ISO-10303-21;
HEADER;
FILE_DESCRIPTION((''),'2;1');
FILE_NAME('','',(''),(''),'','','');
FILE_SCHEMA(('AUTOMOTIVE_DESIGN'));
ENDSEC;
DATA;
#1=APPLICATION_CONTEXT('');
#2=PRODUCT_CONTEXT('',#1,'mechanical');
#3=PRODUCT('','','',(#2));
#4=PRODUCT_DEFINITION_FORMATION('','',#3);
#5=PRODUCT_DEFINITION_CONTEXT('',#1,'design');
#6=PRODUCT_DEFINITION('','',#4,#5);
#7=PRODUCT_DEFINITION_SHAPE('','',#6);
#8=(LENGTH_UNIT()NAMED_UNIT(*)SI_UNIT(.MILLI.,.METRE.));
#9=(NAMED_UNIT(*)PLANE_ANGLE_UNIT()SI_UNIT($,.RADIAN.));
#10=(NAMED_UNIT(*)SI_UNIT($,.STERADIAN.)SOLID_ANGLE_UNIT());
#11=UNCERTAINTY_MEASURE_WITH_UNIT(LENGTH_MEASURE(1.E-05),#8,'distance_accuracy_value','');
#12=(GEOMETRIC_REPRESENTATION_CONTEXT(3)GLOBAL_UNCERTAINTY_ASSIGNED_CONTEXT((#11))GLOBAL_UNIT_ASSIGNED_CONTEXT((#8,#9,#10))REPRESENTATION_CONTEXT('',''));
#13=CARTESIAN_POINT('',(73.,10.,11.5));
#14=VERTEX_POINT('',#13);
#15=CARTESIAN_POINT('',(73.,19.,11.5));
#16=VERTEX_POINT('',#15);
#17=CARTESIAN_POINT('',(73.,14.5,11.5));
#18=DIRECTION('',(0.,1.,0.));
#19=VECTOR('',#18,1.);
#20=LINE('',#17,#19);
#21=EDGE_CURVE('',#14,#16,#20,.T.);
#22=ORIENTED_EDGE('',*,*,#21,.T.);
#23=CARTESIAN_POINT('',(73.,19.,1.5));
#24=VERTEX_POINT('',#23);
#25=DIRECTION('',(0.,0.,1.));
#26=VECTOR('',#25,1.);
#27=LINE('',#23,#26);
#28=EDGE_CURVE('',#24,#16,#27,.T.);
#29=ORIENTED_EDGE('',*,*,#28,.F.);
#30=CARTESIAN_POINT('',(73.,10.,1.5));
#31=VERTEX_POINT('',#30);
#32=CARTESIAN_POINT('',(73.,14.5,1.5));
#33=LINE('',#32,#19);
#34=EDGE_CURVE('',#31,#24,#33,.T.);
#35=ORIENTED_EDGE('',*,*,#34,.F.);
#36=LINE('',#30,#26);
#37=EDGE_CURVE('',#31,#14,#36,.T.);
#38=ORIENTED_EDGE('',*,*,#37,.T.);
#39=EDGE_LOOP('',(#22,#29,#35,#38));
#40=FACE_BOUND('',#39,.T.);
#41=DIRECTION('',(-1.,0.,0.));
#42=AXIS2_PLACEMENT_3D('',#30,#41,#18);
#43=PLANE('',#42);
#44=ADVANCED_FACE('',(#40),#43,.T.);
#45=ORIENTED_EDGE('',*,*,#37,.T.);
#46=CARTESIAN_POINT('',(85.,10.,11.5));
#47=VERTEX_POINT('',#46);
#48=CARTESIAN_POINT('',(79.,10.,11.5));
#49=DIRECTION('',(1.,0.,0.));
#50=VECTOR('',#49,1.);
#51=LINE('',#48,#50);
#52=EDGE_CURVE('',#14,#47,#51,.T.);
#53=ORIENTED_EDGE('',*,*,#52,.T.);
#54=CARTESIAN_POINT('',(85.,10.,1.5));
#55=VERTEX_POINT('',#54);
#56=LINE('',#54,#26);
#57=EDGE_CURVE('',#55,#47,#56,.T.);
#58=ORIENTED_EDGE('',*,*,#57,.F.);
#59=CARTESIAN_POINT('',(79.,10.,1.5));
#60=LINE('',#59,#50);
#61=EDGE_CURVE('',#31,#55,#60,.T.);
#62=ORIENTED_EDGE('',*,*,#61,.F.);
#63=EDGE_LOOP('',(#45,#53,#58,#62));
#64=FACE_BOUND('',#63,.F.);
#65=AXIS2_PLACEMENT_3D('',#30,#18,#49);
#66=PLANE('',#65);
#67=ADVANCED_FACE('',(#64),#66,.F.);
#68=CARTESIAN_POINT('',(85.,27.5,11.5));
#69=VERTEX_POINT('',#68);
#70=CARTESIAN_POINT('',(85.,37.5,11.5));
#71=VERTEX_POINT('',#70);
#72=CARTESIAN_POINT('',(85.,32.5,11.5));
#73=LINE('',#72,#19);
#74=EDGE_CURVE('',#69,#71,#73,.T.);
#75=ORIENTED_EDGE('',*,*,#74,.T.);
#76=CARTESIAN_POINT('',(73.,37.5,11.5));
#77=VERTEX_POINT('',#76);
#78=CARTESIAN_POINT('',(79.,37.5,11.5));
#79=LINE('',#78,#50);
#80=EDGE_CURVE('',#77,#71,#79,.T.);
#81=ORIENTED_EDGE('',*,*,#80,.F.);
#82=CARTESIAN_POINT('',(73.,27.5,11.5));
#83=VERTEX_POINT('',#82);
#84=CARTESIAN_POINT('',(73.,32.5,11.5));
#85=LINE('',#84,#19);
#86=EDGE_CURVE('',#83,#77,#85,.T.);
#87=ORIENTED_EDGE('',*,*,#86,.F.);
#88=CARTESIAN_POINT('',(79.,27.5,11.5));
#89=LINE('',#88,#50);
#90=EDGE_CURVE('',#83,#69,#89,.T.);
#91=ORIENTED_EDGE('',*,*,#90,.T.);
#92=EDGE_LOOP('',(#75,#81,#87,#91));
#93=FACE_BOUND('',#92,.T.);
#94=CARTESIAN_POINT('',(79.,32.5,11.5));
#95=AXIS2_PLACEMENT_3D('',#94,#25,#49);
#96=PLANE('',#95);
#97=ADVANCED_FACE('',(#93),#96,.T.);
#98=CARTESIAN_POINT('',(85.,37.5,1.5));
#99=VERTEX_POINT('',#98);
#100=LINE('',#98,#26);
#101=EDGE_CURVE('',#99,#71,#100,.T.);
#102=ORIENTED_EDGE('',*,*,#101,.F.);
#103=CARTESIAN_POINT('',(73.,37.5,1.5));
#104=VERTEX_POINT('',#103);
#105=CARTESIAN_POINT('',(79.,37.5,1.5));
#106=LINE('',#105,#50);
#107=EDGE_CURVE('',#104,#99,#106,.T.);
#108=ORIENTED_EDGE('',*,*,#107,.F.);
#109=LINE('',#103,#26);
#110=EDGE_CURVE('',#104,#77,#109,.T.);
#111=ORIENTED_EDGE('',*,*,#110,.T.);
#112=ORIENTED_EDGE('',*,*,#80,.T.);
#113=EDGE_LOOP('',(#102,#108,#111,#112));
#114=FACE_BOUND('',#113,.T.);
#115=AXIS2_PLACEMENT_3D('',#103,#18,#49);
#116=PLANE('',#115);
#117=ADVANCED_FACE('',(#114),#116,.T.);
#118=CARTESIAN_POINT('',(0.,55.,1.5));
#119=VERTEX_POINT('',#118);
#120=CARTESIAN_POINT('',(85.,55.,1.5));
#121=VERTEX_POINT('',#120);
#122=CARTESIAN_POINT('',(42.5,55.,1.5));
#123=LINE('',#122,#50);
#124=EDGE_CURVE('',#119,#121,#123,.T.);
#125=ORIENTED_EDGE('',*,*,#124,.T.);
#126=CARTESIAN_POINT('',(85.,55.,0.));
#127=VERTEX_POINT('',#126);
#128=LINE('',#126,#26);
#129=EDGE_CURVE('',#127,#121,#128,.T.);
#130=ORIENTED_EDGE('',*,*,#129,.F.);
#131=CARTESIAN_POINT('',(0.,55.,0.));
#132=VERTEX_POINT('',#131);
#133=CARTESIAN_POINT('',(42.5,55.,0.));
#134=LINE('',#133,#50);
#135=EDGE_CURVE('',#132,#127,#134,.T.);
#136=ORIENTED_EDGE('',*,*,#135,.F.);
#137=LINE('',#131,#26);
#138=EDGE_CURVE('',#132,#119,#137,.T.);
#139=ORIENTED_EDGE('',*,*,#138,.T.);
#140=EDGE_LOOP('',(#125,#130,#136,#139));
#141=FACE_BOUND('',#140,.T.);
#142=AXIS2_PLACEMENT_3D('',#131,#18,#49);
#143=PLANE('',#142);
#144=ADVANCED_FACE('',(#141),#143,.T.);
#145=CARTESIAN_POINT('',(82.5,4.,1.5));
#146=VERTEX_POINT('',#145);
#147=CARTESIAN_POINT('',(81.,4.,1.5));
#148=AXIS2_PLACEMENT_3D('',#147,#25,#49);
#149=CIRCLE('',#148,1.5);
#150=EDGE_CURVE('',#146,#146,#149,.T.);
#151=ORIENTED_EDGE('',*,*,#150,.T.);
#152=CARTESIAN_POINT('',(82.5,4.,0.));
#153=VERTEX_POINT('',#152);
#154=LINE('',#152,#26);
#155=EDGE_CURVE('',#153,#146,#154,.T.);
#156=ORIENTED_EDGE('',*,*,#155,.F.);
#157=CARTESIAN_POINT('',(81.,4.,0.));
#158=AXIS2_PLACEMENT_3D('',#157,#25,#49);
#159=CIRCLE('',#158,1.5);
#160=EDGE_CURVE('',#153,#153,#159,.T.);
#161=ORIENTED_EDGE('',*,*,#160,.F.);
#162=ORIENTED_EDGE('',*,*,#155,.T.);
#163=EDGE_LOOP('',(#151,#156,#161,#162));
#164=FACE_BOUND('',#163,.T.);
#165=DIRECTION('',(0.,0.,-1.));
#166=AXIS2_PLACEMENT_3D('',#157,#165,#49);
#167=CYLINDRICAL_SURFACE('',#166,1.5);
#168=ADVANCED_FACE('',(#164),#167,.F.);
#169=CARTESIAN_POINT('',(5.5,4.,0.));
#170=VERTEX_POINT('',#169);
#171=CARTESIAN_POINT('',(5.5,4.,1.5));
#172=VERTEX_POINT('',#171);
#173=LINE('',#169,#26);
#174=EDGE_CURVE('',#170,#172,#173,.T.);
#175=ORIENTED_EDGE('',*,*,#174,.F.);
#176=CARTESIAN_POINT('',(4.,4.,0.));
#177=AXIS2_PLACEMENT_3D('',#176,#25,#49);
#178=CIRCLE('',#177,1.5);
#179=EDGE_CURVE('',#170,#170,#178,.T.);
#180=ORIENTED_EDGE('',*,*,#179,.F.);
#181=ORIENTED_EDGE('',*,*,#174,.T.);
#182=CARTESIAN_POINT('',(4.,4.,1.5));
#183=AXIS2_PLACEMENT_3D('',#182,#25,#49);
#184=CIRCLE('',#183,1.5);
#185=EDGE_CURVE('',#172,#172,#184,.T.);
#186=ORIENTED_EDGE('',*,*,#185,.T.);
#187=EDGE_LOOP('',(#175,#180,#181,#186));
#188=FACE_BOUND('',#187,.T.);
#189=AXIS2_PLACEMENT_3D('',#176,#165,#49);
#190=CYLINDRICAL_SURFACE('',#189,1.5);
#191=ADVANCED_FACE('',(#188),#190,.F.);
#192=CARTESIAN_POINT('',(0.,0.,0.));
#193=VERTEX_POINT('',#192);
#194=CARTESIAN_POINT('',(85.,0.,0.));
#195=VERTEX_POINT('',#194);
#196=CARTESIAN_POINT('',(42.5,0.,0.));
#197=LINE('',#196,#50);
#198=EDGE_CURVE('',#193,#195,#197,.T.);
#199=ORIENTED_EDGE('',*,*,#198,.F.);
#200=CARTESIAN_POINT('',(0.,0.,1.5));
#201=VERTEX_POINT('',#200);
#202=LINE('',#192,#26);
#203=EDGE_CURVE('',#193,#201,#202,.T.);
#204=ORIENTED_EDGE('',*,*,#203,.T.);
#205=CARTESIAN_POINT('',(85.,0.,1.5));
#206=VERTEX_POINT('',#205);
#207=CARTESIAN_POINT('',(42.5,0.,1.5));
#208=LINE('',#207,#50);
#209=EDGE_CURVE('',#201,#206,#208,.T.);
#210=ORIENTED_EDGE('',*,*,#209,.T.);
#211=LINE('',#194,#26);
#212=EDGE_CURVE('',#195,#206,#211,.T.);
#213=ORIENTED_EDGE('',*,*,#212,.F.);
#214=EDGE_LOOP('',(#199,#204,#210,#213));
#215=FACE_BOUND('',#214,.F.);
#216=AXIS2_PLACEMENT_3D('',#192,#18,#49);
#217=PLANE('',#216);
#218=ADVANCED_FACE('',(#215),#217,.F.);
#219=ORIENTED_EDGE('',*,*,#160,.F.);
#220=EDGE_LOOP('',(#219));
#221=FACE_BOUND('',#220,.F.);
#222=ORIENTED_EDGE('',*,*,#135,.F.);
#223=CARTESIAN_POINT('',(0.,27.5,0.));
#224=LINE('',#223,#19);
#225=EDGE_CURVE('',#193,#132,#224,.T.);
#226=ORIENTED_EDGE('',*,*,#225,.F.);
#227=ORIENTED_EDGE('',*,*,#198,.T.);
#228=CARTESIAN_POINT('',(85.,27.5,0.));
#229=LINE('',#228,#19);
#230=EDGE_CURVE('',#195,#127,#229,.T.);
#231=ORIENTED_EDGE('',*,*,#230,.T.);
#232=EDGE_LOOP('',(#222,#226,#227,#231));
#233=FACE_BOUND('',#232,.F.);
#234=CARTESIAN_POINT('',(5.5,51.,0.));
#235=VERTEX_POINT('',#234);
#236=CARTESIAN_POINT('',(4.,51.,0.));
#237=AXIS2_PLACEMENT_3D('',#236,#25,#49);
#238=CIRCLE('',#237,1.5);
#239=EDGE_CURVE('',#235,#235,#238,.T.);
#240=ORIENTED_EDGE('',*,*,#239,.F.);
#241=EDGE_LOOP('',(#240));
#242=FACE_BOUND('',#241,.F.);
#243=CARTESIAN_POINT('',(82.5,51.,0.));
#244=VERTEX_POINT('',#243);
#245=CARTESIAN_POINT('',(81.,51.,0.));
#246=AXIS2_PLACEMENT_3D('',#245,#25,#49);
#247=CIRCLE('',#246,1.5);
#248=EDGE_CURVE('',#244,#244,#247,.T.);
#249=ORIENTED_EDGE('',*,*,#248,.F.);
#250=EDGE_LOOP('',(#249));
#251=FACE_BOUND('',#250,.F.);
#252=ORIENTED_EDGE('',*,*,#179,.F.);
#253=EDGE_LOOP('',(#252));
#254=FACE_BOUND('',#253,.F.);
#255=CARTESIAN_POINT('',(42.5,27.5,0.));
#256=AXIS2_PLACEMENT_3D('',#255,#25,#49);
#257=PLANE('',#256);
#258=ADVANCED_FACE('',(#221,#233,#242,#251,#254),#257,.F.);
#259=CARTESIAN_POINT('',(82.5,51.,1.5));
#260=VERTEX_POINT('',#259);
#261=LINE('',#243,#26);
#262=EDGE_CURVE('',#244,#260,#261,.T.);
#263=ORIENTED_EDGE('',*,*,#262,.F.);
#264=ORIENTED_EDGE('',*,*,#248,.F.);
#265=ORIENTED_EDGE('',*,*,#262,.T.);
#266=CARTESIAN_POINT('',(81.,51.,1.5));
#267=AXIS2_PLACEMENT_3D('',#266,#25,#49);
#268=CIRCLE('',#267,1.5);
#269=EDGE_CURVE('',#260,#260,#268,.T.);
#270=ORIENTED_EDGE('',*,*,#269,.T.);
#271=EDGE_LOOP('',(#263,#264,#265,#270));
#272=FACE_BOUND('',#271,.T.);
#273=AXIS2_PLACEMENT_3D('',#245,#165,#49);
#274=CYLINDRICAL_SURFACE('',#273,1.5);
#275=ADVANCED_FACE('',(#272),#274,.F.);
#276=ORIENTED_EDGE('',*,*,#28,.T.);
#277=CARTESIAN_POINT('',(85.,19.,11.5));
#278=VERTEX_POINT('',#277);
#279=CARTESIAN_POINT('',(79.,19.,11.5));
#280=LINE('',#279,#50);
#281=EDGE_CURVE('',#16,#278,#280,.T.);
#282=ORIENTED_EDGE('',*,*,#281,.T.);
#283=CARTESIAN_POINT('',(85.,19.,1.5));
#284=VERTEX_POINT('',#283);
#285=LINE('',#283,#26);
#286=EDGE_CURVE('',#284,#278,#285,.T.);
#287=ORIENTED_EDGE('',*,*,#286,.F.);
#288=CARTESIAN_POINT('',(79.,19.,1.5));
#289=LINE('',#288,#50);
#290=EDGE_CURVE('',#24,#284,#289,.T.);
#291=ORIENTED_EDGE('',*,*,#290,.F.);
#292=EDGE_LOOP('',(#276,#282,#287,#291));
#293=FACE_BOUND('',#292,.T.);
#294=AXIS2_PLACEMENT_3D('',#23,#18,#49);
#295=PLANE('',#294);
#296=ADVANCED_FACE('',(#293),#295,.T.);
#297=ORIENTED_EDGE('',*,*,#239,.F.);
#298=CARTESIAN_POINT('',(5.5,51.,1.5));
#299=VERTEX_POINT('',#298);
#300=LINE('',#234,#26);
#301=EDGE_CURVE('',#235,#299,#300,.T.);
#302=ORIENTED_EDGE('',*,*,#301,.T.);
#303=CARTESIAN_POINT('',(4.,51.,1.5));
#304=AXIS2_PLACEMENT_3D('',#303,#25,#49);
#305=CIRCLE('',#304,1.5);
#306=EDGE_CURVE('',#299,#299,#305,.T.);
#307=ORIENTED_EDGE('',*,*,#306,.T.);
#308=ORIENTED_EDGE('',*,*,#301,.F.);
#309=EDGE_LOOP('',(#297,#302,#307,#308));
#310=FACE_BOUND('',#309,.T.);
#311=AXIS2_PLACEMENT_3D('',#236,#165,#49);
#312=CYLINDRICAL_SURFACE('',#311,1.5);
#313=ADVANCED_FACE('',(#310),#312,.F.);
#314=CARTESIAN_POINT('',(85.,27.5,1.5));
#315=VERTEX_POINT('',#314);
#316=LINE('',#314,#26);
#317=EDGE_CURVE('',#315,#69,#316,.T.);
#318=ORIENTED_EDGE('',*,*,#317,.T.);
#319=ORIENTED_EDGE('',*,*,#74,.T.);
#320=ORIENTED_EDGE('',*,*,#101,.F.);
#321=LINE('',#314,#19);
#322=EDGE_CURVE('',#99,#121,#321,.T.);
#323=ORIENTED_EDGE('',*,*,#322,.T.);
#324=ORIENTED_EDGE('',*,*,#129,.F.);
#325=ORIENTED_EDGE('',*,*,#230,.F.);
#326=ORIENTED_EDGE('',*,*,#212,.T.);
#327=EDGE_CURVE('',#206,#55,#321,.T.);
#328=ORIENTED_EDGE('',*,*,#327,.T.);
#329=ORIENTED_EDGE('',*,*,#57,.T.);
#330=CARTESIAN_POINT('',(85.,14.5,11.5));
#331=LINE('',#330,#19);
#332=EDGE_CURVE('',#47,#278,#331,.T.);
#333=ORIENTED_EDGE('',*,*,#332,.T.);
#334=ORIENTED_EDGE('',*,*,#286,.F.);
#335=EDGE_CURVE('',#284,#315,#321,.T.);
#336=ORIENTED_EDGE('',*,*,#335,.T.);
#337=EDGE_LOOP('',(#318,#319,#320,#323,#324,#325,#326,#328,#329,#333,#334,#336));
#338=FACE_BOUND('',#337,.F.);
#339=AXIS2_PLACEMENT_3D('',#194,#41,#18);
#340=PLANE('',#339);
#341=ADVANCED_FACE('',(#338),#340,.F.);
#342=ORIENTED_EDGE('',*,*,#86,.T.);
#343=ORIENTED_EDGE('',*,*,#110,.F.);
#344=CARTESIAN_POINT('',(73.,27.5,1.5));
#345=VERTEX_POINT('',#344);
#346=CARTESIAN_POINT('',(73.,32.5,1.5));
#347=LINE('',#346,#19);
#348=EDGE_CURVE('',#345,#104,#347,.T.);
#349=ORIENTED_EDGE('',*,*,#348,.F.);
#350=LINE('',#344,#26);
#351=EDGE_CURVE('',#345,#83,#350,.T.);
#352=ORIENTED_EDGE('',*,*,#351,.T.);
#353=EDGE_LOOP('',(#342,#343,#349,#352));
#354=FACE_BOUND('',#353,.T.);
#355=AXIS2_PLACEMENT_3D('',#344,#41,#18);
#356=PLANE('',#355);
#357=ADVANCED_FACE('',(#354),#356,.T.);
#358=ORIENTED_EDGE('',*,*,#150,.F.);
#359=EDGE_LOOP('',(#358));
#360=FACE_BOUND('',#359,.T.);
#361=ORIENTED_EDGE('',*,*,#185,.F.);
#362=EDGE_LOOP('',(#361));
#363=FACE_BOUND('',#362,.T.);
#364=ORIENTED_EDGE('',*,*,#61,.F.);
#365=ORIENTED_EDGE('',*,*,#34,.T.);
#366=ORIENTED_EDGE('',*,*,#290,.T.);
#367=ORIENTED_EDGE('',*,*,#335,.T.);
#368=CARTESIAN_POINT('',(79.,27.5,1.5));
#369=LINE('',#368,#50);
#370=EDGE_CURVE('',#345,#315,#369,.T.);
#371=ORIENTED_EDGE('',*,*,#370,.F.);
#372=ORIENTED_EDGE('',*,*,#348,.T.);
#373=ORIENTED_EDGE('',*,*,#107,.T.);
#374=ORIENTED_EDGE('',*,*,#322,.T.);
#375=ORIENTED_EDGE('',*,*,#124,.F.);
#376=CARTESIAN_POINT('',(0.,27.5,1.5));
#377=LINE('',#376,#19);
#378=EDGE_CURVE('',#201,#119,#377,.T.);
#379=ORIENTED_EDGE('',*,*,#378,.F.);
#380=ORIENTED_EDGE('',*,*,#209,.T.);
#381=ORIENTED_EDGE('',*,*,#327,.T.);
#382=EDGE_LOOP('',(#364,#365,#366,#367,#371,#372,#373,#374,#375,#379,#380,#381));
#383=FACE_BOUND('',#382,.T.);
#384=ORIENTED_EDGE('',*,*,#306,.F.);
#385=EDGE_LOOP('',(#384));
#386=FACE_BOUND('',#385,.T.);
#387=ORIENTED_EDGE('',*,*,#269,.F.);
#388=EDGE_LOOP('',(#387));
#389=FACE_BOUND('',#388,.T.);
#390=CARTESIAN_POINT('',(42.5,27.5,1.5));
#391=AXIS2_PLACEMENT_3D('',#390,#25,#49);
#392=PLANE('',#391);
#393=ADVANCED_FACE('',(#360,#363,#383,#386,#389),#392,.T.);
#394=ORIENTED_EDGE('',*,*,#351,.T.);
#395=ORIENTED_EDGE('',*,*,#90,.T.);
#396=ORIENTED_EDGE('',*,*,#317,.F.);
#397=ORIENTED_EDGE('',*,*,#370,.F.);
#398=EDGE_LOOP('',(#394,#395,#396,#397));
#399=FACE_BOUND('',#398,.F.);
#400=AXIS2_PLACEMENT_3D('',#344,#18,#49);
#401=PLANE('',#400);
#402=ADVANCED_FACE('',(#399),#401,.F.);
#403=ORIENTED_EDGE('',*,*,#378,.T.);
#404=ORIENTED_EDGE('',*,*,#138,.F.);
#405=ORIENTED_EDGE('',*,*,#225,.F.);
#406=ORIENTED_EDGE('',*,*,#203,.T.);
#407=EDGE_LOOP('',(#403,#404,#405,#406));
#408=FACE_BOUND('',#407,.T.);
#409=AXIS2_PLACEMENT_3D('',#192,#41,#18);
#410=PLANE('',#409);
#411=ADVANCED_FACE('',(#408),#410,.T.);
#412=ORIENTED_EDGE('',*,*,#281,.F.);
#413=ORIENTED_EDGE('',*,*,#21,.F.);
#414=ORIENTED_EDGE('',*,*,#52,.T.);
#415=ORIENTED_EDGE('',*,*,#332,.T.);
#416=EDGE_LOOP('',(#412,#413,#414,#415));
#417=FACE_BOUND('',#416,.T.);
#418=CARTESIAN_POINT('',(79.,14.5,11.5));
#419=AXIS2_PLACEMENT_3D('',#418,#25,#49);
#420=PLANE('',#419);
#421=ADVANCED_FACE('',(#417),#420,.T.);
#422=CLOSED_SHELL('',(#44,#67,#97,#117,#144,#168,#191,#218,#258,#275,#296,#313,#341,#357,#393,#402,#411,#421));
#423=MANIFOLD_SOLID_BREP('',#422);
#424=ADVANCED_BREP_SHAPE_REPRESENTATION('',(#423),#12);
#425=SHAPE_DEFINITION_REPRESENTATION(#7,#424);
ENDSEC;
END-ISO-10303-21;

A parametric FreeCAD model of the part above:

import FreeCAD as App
import Part
import Sketcher
from FreeCAD import Vector

doc = App.newDocument("Part")
params = doc.addObject("Spreadsheet::Sheet", "Params")
for row, (alias, value) in enumerate([
    ("sketch1_diameter", "3 mm"),
    ("sketch1_width", "85 mm"),
    ("sketch1_height", "55 mm"),
    ("pad1_length", "1.5 mm"),
    ("sketch2_width", "12 mm"),
    ("sketch2_height", "9 mm"),
    ("sketch2_height2", "10 mm"),
    ("pad2_length", "10 mm"),
], start=1):
    params.set(f"A{row}", alias)
    params.set(f"B{row}", "=" + value)
    params.setAlias(f"B{row}", alias)

body = doc.addObject("PartDesign::Body", "Body")

# Sketch on XY plane
sketch1 = body.newObject("Sketcher::SketchObject", "Sketch")
sketch1.AttachmentSupport = (doc.getObject("XY_Plane"), [""])
sketch1.MapMode = "FlatFace"
sketch1.addGeometry([
    Part.LineSegment(Vector(0, 55, 0), Vector(0, 0, 0)),  # 0
    Part.LineSegment(Vector(0, 0, 0), Vector(85, 0, 0)),  # 1
    Part.LineSegment(Vector(85, 0, 0), Vector(85, 55, 0)),  # 2
    Part.LineSegment(Vector(85, 55, 0), Vector(0, 55, 0)),  # 3
    Part.Circle(Vector(4, 4, 0), Vector(0, 0, 1), 1.5),  # 4
    Part.Circle(Vector(81, 4, 0), Vector(0, 0, 1), 1.5),  # 5
    Part.Circle(Vector(4, 51, 0), Vector(0, 0, 1), 1.5),  # 6
    Part.Circle(Vector(81, 51, 0), Vector(0, 0, 1), 1.5),  # 7
], False)
sketch1.addConstraint([
    Sketcher.Constraint("Coincident", 0, 2, 1, 1),
    Sketcher.Constraint("Coincident", 1, 2, 2, 1),
    Sketcher.Constraint("Coincident", 2, 2, 3, 1),
    Sketcher.Constraint("Coincident", 3, 2, 0, 1),
    Sketcher.Constraint("Vertical", 0),
    Sketcher.Constraint("Horizontal", 1),
    Sketcher.Constraint("Vertical", 2),
    Sketcher.Constraint("Horizontal", 3),
    Sketcher.Constraint("Coincident", 0, 2, -1, 1),
    Sketcher.Constraint("Equal", 4, 5),
    Sketcher.Constraint("Equal", 5, 6),
    Sketcher.Constraint("Equal", 6, 7),
    Sketcher.Constraint("Horizontal", 4, 3, 5, 3),
    Sketcher.Constraint("Horizontal", 6, 3, 7, 3),
    Sketcher.Constraint("Vertical", 4, 3, 6, 3),
    Sketcher.Constraint("Vertical", 5, 3, 7, 3),
    Sketcher.Constraint("Diameter", 4, 3.0),
    Sketcher.Constraint("DistanceX", 1, 1, 1, 2, 85.0),
    Sketcher.Constraint("DistanceY", 0, 2, 0, 1, 55.0),
    Sketcher.Constraint("DistanceX", -1, 1, 4, 3, 4.0),
    Sketcher.Constraint("DistanceY", -1, 1, 4, 3, 4.0),
    Sketcher.Constraint("DistanceX", -1, 1, 5, 3, 81.0),
    Sketcher.Constraint("DistanceY", -1, 1, 6, 3, 51.0),
])
sketch1.setExpression("Constraints[16]", "Params.sketch1_diameter")
sketch1.setExpression("Constraints[17]", "Params.sketch1_width")
sketch1.setExpression("Constraints[18]", "Params.sketch1_height")
pad1 = body.newObject("PartDesign::Pad", "Pad")
pad1.Profile = sketch1
pad1.setExpression("Length", "Params.pad1_length")

# Sketch on XY plane
sketch2 = body.newObject("Sketcher::SketchObject", "Sketch001")
sketch2.AttachmentSupport = (doc.getObject("XY_Plane"), [""])
sketch2.MapMode = "FlatFace"
sketch2.AttachmentOffset = App.Placement(Vector(0, 0, 1.5), App.Rotation())
sketch2.addGeometry([
    Part.LineSegment(Vector(73, 19, 0), Vector(73, 10, 0)),  # 0
    Part.LineSegment(Vector(73, 10, 0), Vector(85, 10, 0)),  # 1
    Part.LineSegment(Vector(85, 10, 0), Vector(85, 19, 0)),  # 2
    Part.LineSegment(Vector(85, 19, 0), Vector(73, 19, 0)),  # 3
    Part.LineSegment(Vector(73, 38, 0), Vector(73, 28, 0)),  # 4
    Part.LineSegment(Vector(73, 28, 0), Vector(85, 28, 0)),  # 5
    Part.LineSegment(Vector(85, 28, 0), Vector(85, 38, 0)),  # 6
    Part.LineSegment(Vector(85, 38, 0), Vector(73, 38, 0)),  # 7
], False)
sketch2.addConstraint([
    Sketcher.Constraint("Coincident", 0, 2, 1, 1),
    Sketcher.Constraint("Coincident", 1, 2, 2, 1),
    Sketcher.Constraint("Coincident", 2, 2, 3, 1),
    Sketcher.Constraint("Coincident", 3, 2, 0, 1),
    Sketcher.Constraint("Coincident", 4, 2, 5, 1),
    Sketcher.Constraint("Coincident", 5, 2, 6, 1),
    Sketcher.Constraint("Coincident", 6, 2, 7, 1),
    Sketcher.Constraint("Coincident", 7, 2, 4, 1),
    Sketcher.Constraint("Vertical", 0),
    Sketcher.Constraint("Horizontal", 1),
    Sketcher.Constraint("Vertical", 2),
    Sketcher.Constraint("Horizontal", 3),
    Sketcher.Constraint("Vertical", 4),
    Sketcher.Constraint("Horizontal", 5),
    Sketcher.Constraint("Vertical", 6),
    Sketcher.Constraint("Horizontal", 7),
    Sketcher.Constraint("Vertical", 3, 2, 4, 2),
    Sketcher.Constraint("Vertical", 2, 2, 5, 2),
    Sketcher.Constraint("DistanceX", 1, 1, 1, 2, 12.0),
    Sketcher.Constraint("DistanceY", 0, 2, 0, 1, 9.0),
    Sketcher.Constraint("DistanceY", 4, 2, 4, 1, 10.0),
    Sketcher.Constraint("DistanceX", -1, 1, 0, 2, 73.0),
    Sketcher.Constraint("DistanceY", -1, 1, 0, 2, 10.0),
    Sketcher.Constraint("DistanceY", -1, 1, 4, 2, 27.5),
])
sketch2.setExpression("Constraints[18]", "Params.sketch2_width")
sketch2.setExpression("Constraints[19]", "Params.sketch2_height")
sketch2.setExpression("Constraints[20]", "Params.sketch2_height2")
pad2 = body.newObject("PartDesign::Pad", "Pad001")
pad2.Profile = sketch2
pad2.setExpression("Length", "Params.pad2_length")

doc.recompute()
